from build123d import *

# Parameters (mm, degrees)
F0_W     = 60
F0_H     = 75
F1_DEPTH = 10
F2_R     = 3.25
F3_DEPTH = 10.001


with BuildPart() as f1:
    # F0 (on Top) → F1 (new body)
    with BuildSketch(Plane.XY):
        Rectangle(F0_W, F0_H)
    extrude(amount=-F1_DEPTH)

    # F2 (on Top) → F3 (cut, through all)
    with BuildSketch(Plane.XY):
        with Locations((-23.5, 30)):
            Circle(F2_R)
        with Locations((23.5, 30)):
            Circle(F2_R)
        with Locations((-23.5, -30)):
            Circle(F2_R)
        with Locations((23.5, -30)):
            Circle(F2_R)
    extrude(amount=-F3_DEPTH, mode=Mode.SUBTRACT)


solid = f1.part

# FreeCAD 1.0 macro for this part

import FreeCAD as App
import Part
import Sketcher
from FreeCAD import Vector


def add_polygon(sketch, points):
    """Adds a closed chain of lines whose ends are joined by coincident constraints."""
    first, n = sketch.GeometryCount, len(points)
    for a, b in zip(points, points[1:] + points[:1]):
        sketch.addGeometry(Part.LineSegment(App.Vector(*a, 0), App.Vector(*b, 0)), False)
    for i in range(n):
        sketch.addConstraint(Sketcher.Constraint("Coincident", first + i, 2, first + (i + 1) % n, 1))

doc = App.newDocument("Part")
body = doc.addObject("PartDesign::Body", "Body")

# Sketch on XY plane
sketch1 = body.newObject("Sketcher::SketchObject", "Sketch")
sketch1.AttachmentSupport = (doc.getObject("XY_Plane"), [""])
sketch1.MapMode = "FlatFace"
add_polygon(sketch1, [(-30, 38), (-30, -38), (30, -38), (30, 38)])  # lines 0-3
sketch1.addConstraint([
    Sketcher.Constraint("Vertical", 0),
    Sketcher.Constraint("Horizontal", 1),
    Sketcher.Constraint("Vertical", 2),
    Sketcher.Constraint("Horizontal", 3),
    Sketcher.Constraint("Symmetric", 0, 2, 2, 2, -1, 1),
    Sketcher.Constraint("DistanceX", 1, 1, 1, 2, 60.0),
    Sketcher.Constraint("DistanceY", 0, 2, 0, 1, 75.0),
])
pad1 = body.newObject("PartDesign::Pad", "Pad")
pad1.Profile = sketch1
pad1.Length = 10
pad1.Reversed = True

# Sketch on XY plane
sketch2 = body.newObject("Sketcher::SketchObject", "Sketch001")
sketch2.AttachmentSupport = (doc.getObject("XY_Plane"), [""])
sketch2.MapMode = "FlatFace"
sketch2.addGeometry([
    Part.Circle(Vector(-23.5, 30, 0), Vector(0, 0, 1), 3.2),
    Part.Circle(Vector(23.5, 30, 0), Vector(0, 0, 1), 3.2),
    Part.Circle(Vector(-23.5, -30, 0), Vector(0, 0, 1), 3.2),
    Part.Circle(Vector(23.5, -30, 0), Vector(0, 0, 1), 3.2),
], False)
sketch2.addConstraint([
    Sketcher.Constraint("Equal", 0, 1),
    Sketcher.Constraint("Equal", 1, 2),
    Sketcher.Constraint("Equal", 2, 3),
    Sketcher.Constraint("Symmetric", 1, 3, 2, 3, -1, 1),
    Sketcher.Constraint("Symmetric", 0, 3, 3, 3, -1, 1),
    Sketcher.Constraint("Symmetric", 0, 3, 1, 3, -2),
    Sketcher.Constraint("Diameter", 0, 6.5),
    Sketcher.Constraint("DistanceY", -1, 1, 0, 3, 30.0),
    Sketcher.Constraint("DistanceX", 0, 3, 1, 3, 47.0),
])
pocket1 = body.newObject("PartDesign::Pocket", "Pocket")
pocket1.Profile = sketch2
pocket1.Type = "ThroughAll"

doc.recompute()
